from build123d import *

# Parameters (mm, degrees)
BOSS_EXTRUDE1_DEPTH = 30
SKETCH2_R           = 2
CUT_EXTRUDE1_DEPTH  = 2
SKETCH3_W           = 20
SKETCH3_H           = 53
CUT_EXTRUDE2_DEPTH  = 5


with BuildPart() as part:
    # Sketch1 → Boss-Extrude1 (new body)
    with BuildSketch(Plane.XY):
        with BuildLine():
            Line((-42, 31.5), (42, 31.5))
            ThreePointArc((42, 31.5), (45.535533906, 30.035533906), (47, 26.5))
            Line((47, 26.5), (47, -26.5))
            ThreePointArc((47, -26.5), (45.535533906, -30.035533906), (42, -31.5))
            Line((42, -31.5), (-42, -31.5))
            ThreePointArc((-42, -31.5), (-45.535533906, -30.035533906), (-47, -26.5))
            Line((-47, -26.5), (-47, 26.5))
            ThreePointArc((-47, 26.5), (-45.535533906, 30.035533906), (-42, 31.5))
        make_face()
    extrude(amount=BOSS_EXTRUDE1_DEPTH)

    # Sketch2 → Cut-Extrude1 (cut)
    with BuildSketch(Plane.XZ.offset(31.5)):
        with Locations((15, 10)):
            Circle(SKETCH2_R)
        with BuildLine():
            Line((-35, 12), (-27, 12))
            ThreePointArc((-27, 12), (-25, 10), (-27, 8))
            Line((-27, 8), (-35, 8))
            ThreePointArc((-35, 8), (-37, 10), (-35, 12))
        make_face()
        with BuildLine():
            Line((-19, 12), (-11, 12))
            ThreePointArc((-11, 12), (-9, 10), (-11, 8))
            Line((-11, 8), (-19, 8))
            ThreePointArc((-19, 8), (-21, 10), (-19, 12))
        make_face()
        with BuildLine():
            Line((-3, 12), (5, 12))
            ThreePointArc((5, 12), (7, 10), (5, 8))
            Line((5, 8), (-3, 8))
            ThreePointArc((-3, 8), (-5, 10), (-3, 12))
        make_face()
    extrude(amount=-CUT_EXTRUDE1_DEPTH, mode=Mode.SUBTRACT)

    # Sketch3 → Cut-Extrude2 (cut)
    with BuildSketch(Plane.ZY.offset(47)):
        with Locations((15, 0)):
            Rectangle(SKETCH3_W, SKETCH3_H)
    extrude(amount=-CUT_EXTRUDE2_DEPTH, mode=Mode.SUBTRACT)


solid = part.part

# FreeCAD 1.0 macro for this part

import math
import FreeCAD as App
import Part
import Sketcher

V = App.Vector


def add_polygon(sketch, points):
    """Adds a closed chain of lines whose ends are joined by coincident constraints."""
    first, n = sketch.GeometryCount, len(points)
    for a, b in zip(points, points[1:] + points[:1]):
        sketch.addGeometry(Part.LineSegment(App.Vector(*a, 0), App.Vector(*b, 0)), False)
    for i in range(n):
        sketch.addConstraint(Sketcher.Constraint("Coincident", first + i, 2, first + (i + 1) % n, 1))

doc = App.newDocument("Part")
body = doc.addObject("PartDesign::Body", "Body")

sketch1 = body.newObject("Sketcher::SketchObject", "Sketch")
sketch1.AttachmentSupport = (doc.getObject("XY_Plane"), [""])
sketch1.MapMode = "FlatFace"
sketch1.addGeometry(Part.LineSegment(V(42, 32, 0), V(-42, 32, 0)), False)
sketch1.addGeometry(Part.ArcOfCircle(Part.Circle(V(-42, 26, 0), V(0, 0, 1), 5), math.radians(90), math.radians(180)), False)
sketch1.addGeometry(Part.LineSegment(V(-47, 26, 0), V(-47, -26, 0)), False)
sketch1.addGeometry(Part.ArcOfCircle(Part.Circle(V(-42, -26, 0), V(0, 0, 1), 5), math.radians(180), math.radians(270)), False)
sketch1.addGeometry(Part.LineSegment(V(-42, -32, 0), V(42, -32, 0)), False)
sketch1.addGeometry(Part.ArcOfCircle(Part.Circle(V(42, -26, 0), V(0, 0, 1), 5), math.radians(-90), math.radians(0)), False)
sketch1.addGeometry(Part.LineSegment(V(47, -26, 0), V(47, 26, 0)), False)
sketch1.addGeometry(Part.ArcOfCircle(Part.Circle(V(42, 26, 0), V(0, 0, 1), 5), math.radians(0), math.radians(90)), False)
sketch1.addConstraint(Sketcher.Constraint("Tangent", 0, 2, 1, 1))
sketch1.addConstraint(Sketcher.Constraint("Tangent", 1, 2, 2, 1))
sketch1.addConstraint(Sketcher.Constraint("Tangent", 2, 2, 3, 1))
sketch1.addConstraint(Sketcher.Constraint("Tangent", 3, 2, 4, 1))
sketch1.addConstraint(Sketcher.Constraint("Tangent", 4, 2, 5, 1))
sketch1.addConstraint(Sketcher.Constraint("Tangent", 5, 2, 6, 1))
sketch1.addConstraint(Sketcher.Constraint("Tangent", 6, 2, 7, 1))
sketch1.addConstraint(Sketcher.Constraint("Tangent", 7, 2, 0, 1))
sketch1.addConstraint(Sketcher.Constraint("Horizontal", 0))
sketch1.addConstraint(Sketcher.Constraint("Vertical", 2))
sketch1.addConstraint(Sketcher.Constraint("Horizontal", 4))
sketch1.addConstraint(Sketcher.Constraint("Vertical", 6))
sketch1.addConstraint(Sketcher.Constraint("Equal", 1, 3))
sketch1.addConstraint(Sketcher.Constraint("Equal", 3, 5))
sketch1.addConstraint(Sketcher.Constraint("Equal", 5, 7))
sketch1.addConstraint(Sketcher.Constraint("Symmetric", 1, 3, 5, 3, -1, 1))
sketch1.addConstraint(Sketcher.Constraint("Radius", 1, 5.0))
sketch1.addConstraint(Sketcher.Constraint("DistanceX", 0, 2, 0, 1, 84.0))
sketch1.addConstraint(Sketcher.Constraint("DistanceY", 2, 2, 2, 1, 53.0))
pad1 = body.newObject("PartDesign::Pad", "Pad")
pad1.Profile = sketch1
pad1.Length = 30

sketch2 = body.newObject("Sketcher::SketchObject", "Sketch001")
sketch2.AttachmentSupport = (doc.getObject("XZ_Plane"), [""])
sketch2.MapMode = "FlatFace"
sketch2.AttachmentOffset = App.Placement(V(0, 0, 31.5), App.Rotation())
sketch2.addGeometry(Part.Circle(V(15, 10, 0), V(0, 0, 1), 2), False)
sketch2.addGeometry(Part.LineSegment(V(-27, 12, 0), V(-35, 12, 0)), False)
sketch2.addGeometry(Part.ArcOfCircle(Part.Circle(V(-35, 10, 0), V(0, 0, 1), 2), math.radians(90), math.radians(270)), False)
sketch2.addGeometry(Part.LineSegment(V(-35, 8, 0), V(-27, 8, 0)), False)
sketch2.addGeometry(Part.ArcOfCircle(Part.Circle(V(-27, 10, 0), V(0, 0, 1), 2), math.radians(-90), math.radians(90)), False)
sketch2.addGeometry(Part.LineSegment(V(-11, 12, 0), V(-19, 12, 0)), False)
sketch2.addGeometry(Part.ArcOfCircle(Part.Circle(V(-19, 10, 0), V(0, 0, 1), 2), math.radians(90), math.radians(270)), False)
sketch2.addGeometry(Part.LineSegment(V(-19, 8, 0), V(-11, 8, 0)), False)
sketch2.addGeometry(Part.ArcOfCircle(Part.Circle(V(-11, 10, 0), V(0, 0, 1), 2), math.radians(-90), math.radians(90)), False)
sketch2.addGeometry(Part.LineSegment(V(5, 12, 0), V(-3, 12, 0)), False)
sketch2.addGeometry(Part.ArcOfCircle(Part.Circle(V(-3, 10, 0), V(0, 0, 1), 2), math.radians(90), math.radians(270)), False)
sketch2.addGeometry(Part.LineSegment(V(-3, 8, 0), V(5, 8, 0)), False)
sketch2.addGeometry(Part.ArcOfCircle(Part.Circle(V(5, 10, 0), V(0, 0, 1), 2), math.radians(-90), math.radians(90)), False)
sketch2.addConstraint(Sketcher.Constraint("Tangent", 1, 2, 2, 1))
sketch2.addConstraint(Sketcher.Constraint("Tangent", 2, 2, 3, 1))
sketch2.addConstraint(Sketcher.Constraint("Tangent", 3, 2, 4, 1))
sketch2.addConstraint(Sketcher.Constraint("Tangent", 4, 2, 1, 1))
sketch2.addConstraint(Sketcher.Constraint("Tangent", 5, 2, 6, 1))
sketch2.addConstraint(Sketcher.Constraint("Tangent", 6, 2, 7, 1))
sketch2.addConstraint(Sketcher.Constraint("Tangent", 7, 2, 8, 1))
sketch2.addConstraint(Sketcher.Constraint("Tangent", 8, 2, 5, 1))
sketch2.addConstraint(Sketcher.Constraint("Tangent", 9, 2, 10, 1))
sketch2.addConstraint(Sketcher.Constraint("Tangent", 10, 2, 11, 1))
sketch2.addConstraint(Sketcher.Constraint("Tangent", 11, 2, 12, 1))
sketch2.addConstraint(Sketcher.Constraint("Tangent", 12, 2, 9, 1))
sketch2.addConstraint(Sketcher.Constraint("Horizontal", 1))
sketch2.addConstraint(Sketcher.Constraint("Horizontal", 3))
sketch2.addConstraint(Sketcher.Constraint("Horizontal", 5))
sketch2.addConstraint(Sketcher.Constraint("Horizontal", 7))
sketch2.addConstraint(Sketcher.Constraint("Horizontal", 9))
sketch2.addConstraint(Sketcher.Constraint("Horizontal", 11))
sketch2.addConstraint(Sketcher.Constraint("Equal", 0, 2))
sketch2.addConstraint(Sketcher.Constraint("Equal", 4, 6))
sketch2.addConstraint(Sketcher.Constraint("Equal", 8, 10))
sketch2.addConstraint(Sketcher.Constraint("Horizontal", 0, 3, 2, 3))
sketch2.addConstraint(Sketcher.Constraint("Horizontal", 4, 3, 6, 3))
sketch2.addConstraint(Sketcher.Constraint("Horizontal", 8, 3, 10, 3))
sketch2.addConstraint(Sketcher.Constraint("Equal", 3, 5))
sketch2.addConstraint(Sketcher.Constraint("Equal", 7, 9))
sketch2.addConstraint(Sketcher.Constraint("Diameter", 0, 4.0))
sketch2.addConstraint(Sketcher.Constraint("DistanceX", 1, 2, 1, 1, 8.0))
sketch2.addConstraint(Sketcher.Constraint("DistanceX", -1, 1, 0, 3, 15.0))
sketch2.addConstraint(Sketcher.Constraint("DistanceY", -1, 1, 0, 3, 10.0))
sketch2.addConstraint(Sketcher.Constraint("DistanceX", 2, 3, -1, 1, 35.0))
sketch2.addConstraint(Sketcher.Constraint("DistanceX", 6, 3, -1, 1, 19.0))
sketch2.addConstraint(Sketcher.Constraint("DistanceX", 10, 3, -1, 1, 3.0))
pocket1 = body.newObject("PartDesign::Pocket", "Pocket")
pocket1.Profile = sketch2
pocket1.Length = 2

sketch3 = body.newObject("Sketcher::SketchObject", "Sketch002")
sketch3.AttachmentSupport = (doc.getObject("YZ_Plane"), [""])
sketch3.MapMode = "FlatFace"
sketch3.AttachmentOffset = App.Placement(V(0, 0, -47), App.Rotation())
add_polygon(sketch3, [(26, 5), (-26, 5), (-26, 25), (26, 25)])
sketch3.addConstraint(Sketcher.Constraint("Horizontal", 0))
sketch3.addConstraint(Sketcher.Constraint("Vertical", 1))
sketch3.addConstraint(Sketcher.Constraint("Horizontal", 2))
sketch3.addConstraint(Sketcher.Constraint("Vertical", 3))
sketch3.addConstraint(Sketcher.Constraint("DistanceX", 0, 2, 0, 1, 53.0))
sketch3.addConstraint(Sketcher.Constraint("DistanceY", 1, 1, 1, 2, 20.0))
sketch3.addConstraint(Sketcher.Constraint("DistanceY", -1, 1, 0, 2, 5.0))
sketch3.addConstraint(Sketcher.Constraint("DistanceX", 0, 2, -1, 1, 26.5))
pocket2 = body.newObject("PartDesign::Pocket", "Pocket001")
pocket2.Profile = sketch3
pocket2.Length = 5
pocket2.Reversed = True

doc.recompute()
